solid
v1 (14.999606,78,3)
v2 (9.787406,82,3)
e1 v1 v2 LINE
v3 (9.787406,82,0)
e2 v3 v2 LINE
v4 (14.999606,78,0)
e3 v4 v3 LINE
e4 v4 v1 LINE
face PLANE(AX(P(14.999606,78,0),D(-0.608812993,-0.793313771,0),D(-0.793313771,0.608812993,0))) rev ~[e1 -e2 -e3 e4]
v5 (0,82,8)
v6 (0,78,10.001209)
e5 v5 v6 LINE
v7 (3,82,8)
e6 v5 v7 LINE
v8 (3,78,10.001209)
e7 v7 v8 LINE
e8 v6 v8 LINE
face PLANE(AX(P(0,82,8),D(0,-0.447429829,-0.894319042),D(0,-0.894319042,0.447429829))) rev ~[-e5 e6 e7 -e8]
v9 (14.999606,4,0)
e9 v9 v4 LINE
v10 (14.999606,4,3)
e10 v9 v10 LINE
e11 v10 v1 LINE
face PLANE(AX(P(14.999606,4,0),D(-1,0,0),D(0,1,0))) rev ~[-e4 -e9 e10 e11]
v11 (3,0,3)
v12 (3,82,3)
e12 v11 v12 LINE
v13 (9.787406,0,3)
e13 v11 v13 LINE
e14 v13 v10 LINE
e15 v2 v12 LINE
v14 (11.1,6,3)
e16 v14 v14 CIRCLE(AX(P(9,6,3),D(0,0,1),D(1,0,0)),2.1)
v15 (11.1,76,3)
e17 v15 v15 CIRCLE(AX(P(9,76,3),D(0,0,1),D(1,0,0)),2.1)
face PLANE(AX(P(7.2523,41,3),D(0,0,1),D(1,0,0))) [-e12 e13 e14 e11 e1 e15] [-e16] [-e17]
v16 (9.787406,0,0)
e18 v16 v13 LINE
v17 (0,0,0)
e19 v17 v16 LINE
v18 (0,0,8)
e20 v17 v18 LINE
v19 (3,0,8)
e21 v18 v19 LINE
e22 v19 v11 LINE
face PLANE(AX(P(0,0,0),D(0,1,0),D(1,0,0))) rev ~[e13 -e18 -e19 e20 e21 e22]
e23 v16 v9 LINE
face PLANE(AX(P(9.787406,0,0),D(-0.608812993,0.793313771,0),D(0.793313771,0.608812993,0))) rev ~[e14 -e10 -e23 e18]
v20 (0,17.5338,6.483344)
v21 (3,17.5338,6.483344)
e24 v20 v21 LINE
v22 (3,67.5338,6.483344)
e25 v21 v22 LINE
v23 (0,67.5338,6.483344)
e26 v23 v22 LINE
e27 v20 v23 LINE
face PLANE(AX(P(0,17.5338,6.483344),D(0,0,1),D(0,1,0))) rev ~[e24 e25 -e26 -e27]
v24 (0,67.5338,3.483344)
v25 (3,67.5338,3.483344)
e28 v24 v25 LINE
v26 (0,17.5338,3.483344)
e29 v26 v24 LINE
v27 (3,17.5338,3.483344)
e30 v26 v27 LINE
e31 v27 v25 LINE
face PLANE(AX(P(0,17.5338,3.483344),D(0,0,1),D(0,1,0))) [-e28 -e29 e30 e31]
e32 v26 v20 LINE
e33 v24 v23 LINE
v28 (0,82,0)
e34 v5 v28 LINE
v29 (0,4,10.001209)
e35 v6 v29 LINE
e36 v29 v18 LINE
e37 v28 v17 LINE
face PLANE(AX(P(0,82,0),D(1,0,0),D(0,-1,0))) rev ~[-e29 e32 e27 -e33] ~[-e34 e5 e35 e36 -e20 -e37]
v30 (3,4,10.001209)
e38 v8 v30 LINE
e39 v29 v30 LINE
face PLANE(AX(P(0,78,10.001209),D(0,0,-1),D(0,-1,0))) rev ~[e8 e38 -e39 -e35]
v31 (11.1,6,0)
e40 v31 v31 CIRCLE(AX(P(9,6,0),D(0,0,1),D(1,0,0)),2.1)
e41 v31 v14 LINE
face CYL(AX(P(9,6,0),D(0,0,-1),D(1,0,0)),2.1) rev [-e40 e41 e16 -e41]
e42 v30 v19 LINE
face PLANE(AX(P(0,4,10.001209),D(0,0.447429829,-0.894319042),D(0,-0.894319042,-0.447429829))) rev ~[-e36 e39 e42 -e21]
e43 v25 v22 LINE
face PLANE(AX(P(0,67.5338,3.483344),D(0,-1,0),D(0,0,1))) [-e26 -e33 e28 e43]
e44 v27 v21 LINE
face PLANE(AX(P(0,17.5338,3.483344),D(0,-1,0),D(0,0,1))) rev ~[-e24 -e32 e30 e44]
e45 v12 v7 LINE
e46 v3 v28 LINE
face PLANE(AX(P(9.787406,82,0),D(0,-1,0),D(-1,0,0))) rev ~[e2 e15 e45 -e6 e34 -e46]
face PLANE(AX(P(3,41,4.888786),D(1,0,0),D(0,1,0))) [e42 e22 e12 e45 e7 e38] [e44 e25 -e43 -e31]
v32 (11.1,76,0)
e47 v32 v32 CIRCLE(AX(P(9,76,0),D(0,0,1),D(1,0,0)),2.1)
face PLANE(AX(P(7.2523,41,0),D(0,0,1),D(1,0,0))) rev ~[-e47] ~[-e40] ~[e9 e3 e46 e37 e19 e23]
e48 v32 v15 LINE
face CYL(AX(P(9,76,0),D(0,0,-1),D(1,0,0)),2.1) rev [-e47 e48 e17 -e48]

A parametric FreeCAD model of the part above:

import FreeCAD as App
import Part
import Sketcher
Q = App.Units.Quantity


def add_polygon(sketch, points):
    """Adds a closed chain of lines whose ends are joined by coincident constraints."""
    first, n = sketch.GeometryCount, len(points)
    for a, b in zip(points, points[1:] + points[:1]):
        sketch.addGeometry(Part.LineSegment(App.Vector(*a, 0), App.Vector(*b, 0)), False)
    for i in range(n):
        sketch.addConstraint(Sketcher.Constraint("Coincident", first + i, 2, first + (i + 1) % n, 1))

doc = App.newDocument("Part")
body = doc.addObject("PartDesign::Body", "Body")

# Sketch on YZ plane
sketch1 = body.newObject("Sketcher::SketchObject", "Sketch")
sketch1.AttachmentSupport = (doc.getObject("YZ_Plane"), [""])
sketch1.MapMode = "FlatFace"
add_polygon(sketch1, [(0, 0), (82, 0), (82, 8), (78, 10), (4, 10), (0, 8)])  # lines 0-5
add_polygon(sketch1, [(67.5, 3.5), (17.5, 3.5), (17.5, 6.5), (67.5, 6.5)])  # lines 6-9
sketch1.addConstraint([
    Sketcher.Constraint("Horizontal", 0),
    Sketcher.Constraint("Vertical", 1),
    Sketcher.Constraint("Horizontal", 3),
    Sketcher.Constraint("Vertical", 5),
    Sketcher.Constraint("Horizontal", 6),
    Sketcher.Constraint("Vertical", 7),
    Sketcher.Constraint("Horizontal", 8),
    Sketcher.Constraint("Vertical", 9),
    Sketcher.Constraint("Coincident", 5, 2, -1, 1),
    Sketcher.Constraint("Horizontal", 1, 2, 4, 2),
    Sketcher.Constraint("Equal", 2, 4),
    Sketcher.Constraint("DistanceX", 0, 1, 0, 2, Q("82 mm")),
    Sketcher.Constraint("DistanceX", 3, 2, 3, 1, Q("74 mm")),
    Sketcher.Constraint("DistanceX", 6, 2, 6, 1, Q("50 mm")),
    Sketcher.Constraint("DistanceY", 1, 1, 1, 2, Q("8 mm")),
    Sketcher.Constraint("DistanceY", 7, 1, 7, 2, Q("3 mm")),
    Sketcher.Constraint("DistanceX", -1, 1, 6, 2, Q("17.5338 mm")),
    Sketcher.Constraint("DistanceY", -1, 1, 2, 2, Q("10.001209 mm")),
    Sketcher.Constraint("DistanceY", -1, 1, 6, 2, Q("3.483344 mm")),
])
pad1 = body.newObject("PartDesign::Pad", "Pad")
pad1.Profile = sketch1
pad1.Length = 3
body2 = doc.addObject("PartDesign::Body", "Body001")

# Sketch on XY plane
sketch2 = body2.newObject("Sketcher::SketchObject", "Sketch001")
sketch2.AttachmentSupport = (doc.getObject("XY_Plane001"), [""])
sketch2.MapMode = "FlatFace"
add_polygon(sketch2, [(0, 82), (0, 0), (9.8, 0), (15, 4), (15, 78), (9.8, 82)])  # lines 0-5
sketch2.addGeometry(Part.Circle(App.Vector(9, 6, 0), App.Vector(0, 0, 1), 2.1), False)  # 6
sketch2.addGeometry(Part.Circle(App.Vector(9, 76, 0), App.Vector(0, 0, 1), 2.1), False)  # 7
sketch2.addConstraint([
    Sketcher.Constraint("Vertical", 0),
    Sketcher.Constraint("Horizontal", 1),
    Sketcher.Constraint("Vertical", 3),
    Sketcher.Constraint("Horizontal", 5),
    Sketcher.Constraint("Coincident", 0, 2, -1, 1),
    Sketcher.Constraint("Equal", 6, 7),
    Sketcher.Constraint("Vertical", 6, 3, 7, 3),
    Sketcher.Constraint("Vertical", 1, 2, 4, 2),
    Sketcher.Constraint("Equal", 2, 4),
    Sketcher.Constraint("Diameter", 6, Q("4.2 mm")),
    Sketcher.Constraint("DistanceY", 0, 2, 0, 1, Q("82 mm")),
    Sketcher.Constraint("DistanceY", 3, 1, 3, 2, Q("74 mm")),
    Sketcher.Constraint("DistanceX", -1, 1, 6, 3, Q("9 mm")),
    Sketcher.Constraint("DistanceY", -1, 1, 6, 3, Q("6 mm")),
    Sketcher.Constraint("DistanceY", -1, 1, 7, 3, Q("76 mm")),
    Sketcher.Constraint("DistanceX", 1, 2, 2, 2, Q("5.2122 mm")),
    Sketcher.Constraint("DistanceX", 1, 1, 1, 2, Q("9.787406 mm")),
])
pad2 = body2.newObject("PartDesign::Pad", "Pad001")
pad2.Profile = sketch2
pad2.Length = 3
doc.recompute()

boolean = body2.newObject("PartDesign::Boolean", "Boolean")
boolean.Type = "Fuse"
boolean.addObjects([body])

doc.recompute()
